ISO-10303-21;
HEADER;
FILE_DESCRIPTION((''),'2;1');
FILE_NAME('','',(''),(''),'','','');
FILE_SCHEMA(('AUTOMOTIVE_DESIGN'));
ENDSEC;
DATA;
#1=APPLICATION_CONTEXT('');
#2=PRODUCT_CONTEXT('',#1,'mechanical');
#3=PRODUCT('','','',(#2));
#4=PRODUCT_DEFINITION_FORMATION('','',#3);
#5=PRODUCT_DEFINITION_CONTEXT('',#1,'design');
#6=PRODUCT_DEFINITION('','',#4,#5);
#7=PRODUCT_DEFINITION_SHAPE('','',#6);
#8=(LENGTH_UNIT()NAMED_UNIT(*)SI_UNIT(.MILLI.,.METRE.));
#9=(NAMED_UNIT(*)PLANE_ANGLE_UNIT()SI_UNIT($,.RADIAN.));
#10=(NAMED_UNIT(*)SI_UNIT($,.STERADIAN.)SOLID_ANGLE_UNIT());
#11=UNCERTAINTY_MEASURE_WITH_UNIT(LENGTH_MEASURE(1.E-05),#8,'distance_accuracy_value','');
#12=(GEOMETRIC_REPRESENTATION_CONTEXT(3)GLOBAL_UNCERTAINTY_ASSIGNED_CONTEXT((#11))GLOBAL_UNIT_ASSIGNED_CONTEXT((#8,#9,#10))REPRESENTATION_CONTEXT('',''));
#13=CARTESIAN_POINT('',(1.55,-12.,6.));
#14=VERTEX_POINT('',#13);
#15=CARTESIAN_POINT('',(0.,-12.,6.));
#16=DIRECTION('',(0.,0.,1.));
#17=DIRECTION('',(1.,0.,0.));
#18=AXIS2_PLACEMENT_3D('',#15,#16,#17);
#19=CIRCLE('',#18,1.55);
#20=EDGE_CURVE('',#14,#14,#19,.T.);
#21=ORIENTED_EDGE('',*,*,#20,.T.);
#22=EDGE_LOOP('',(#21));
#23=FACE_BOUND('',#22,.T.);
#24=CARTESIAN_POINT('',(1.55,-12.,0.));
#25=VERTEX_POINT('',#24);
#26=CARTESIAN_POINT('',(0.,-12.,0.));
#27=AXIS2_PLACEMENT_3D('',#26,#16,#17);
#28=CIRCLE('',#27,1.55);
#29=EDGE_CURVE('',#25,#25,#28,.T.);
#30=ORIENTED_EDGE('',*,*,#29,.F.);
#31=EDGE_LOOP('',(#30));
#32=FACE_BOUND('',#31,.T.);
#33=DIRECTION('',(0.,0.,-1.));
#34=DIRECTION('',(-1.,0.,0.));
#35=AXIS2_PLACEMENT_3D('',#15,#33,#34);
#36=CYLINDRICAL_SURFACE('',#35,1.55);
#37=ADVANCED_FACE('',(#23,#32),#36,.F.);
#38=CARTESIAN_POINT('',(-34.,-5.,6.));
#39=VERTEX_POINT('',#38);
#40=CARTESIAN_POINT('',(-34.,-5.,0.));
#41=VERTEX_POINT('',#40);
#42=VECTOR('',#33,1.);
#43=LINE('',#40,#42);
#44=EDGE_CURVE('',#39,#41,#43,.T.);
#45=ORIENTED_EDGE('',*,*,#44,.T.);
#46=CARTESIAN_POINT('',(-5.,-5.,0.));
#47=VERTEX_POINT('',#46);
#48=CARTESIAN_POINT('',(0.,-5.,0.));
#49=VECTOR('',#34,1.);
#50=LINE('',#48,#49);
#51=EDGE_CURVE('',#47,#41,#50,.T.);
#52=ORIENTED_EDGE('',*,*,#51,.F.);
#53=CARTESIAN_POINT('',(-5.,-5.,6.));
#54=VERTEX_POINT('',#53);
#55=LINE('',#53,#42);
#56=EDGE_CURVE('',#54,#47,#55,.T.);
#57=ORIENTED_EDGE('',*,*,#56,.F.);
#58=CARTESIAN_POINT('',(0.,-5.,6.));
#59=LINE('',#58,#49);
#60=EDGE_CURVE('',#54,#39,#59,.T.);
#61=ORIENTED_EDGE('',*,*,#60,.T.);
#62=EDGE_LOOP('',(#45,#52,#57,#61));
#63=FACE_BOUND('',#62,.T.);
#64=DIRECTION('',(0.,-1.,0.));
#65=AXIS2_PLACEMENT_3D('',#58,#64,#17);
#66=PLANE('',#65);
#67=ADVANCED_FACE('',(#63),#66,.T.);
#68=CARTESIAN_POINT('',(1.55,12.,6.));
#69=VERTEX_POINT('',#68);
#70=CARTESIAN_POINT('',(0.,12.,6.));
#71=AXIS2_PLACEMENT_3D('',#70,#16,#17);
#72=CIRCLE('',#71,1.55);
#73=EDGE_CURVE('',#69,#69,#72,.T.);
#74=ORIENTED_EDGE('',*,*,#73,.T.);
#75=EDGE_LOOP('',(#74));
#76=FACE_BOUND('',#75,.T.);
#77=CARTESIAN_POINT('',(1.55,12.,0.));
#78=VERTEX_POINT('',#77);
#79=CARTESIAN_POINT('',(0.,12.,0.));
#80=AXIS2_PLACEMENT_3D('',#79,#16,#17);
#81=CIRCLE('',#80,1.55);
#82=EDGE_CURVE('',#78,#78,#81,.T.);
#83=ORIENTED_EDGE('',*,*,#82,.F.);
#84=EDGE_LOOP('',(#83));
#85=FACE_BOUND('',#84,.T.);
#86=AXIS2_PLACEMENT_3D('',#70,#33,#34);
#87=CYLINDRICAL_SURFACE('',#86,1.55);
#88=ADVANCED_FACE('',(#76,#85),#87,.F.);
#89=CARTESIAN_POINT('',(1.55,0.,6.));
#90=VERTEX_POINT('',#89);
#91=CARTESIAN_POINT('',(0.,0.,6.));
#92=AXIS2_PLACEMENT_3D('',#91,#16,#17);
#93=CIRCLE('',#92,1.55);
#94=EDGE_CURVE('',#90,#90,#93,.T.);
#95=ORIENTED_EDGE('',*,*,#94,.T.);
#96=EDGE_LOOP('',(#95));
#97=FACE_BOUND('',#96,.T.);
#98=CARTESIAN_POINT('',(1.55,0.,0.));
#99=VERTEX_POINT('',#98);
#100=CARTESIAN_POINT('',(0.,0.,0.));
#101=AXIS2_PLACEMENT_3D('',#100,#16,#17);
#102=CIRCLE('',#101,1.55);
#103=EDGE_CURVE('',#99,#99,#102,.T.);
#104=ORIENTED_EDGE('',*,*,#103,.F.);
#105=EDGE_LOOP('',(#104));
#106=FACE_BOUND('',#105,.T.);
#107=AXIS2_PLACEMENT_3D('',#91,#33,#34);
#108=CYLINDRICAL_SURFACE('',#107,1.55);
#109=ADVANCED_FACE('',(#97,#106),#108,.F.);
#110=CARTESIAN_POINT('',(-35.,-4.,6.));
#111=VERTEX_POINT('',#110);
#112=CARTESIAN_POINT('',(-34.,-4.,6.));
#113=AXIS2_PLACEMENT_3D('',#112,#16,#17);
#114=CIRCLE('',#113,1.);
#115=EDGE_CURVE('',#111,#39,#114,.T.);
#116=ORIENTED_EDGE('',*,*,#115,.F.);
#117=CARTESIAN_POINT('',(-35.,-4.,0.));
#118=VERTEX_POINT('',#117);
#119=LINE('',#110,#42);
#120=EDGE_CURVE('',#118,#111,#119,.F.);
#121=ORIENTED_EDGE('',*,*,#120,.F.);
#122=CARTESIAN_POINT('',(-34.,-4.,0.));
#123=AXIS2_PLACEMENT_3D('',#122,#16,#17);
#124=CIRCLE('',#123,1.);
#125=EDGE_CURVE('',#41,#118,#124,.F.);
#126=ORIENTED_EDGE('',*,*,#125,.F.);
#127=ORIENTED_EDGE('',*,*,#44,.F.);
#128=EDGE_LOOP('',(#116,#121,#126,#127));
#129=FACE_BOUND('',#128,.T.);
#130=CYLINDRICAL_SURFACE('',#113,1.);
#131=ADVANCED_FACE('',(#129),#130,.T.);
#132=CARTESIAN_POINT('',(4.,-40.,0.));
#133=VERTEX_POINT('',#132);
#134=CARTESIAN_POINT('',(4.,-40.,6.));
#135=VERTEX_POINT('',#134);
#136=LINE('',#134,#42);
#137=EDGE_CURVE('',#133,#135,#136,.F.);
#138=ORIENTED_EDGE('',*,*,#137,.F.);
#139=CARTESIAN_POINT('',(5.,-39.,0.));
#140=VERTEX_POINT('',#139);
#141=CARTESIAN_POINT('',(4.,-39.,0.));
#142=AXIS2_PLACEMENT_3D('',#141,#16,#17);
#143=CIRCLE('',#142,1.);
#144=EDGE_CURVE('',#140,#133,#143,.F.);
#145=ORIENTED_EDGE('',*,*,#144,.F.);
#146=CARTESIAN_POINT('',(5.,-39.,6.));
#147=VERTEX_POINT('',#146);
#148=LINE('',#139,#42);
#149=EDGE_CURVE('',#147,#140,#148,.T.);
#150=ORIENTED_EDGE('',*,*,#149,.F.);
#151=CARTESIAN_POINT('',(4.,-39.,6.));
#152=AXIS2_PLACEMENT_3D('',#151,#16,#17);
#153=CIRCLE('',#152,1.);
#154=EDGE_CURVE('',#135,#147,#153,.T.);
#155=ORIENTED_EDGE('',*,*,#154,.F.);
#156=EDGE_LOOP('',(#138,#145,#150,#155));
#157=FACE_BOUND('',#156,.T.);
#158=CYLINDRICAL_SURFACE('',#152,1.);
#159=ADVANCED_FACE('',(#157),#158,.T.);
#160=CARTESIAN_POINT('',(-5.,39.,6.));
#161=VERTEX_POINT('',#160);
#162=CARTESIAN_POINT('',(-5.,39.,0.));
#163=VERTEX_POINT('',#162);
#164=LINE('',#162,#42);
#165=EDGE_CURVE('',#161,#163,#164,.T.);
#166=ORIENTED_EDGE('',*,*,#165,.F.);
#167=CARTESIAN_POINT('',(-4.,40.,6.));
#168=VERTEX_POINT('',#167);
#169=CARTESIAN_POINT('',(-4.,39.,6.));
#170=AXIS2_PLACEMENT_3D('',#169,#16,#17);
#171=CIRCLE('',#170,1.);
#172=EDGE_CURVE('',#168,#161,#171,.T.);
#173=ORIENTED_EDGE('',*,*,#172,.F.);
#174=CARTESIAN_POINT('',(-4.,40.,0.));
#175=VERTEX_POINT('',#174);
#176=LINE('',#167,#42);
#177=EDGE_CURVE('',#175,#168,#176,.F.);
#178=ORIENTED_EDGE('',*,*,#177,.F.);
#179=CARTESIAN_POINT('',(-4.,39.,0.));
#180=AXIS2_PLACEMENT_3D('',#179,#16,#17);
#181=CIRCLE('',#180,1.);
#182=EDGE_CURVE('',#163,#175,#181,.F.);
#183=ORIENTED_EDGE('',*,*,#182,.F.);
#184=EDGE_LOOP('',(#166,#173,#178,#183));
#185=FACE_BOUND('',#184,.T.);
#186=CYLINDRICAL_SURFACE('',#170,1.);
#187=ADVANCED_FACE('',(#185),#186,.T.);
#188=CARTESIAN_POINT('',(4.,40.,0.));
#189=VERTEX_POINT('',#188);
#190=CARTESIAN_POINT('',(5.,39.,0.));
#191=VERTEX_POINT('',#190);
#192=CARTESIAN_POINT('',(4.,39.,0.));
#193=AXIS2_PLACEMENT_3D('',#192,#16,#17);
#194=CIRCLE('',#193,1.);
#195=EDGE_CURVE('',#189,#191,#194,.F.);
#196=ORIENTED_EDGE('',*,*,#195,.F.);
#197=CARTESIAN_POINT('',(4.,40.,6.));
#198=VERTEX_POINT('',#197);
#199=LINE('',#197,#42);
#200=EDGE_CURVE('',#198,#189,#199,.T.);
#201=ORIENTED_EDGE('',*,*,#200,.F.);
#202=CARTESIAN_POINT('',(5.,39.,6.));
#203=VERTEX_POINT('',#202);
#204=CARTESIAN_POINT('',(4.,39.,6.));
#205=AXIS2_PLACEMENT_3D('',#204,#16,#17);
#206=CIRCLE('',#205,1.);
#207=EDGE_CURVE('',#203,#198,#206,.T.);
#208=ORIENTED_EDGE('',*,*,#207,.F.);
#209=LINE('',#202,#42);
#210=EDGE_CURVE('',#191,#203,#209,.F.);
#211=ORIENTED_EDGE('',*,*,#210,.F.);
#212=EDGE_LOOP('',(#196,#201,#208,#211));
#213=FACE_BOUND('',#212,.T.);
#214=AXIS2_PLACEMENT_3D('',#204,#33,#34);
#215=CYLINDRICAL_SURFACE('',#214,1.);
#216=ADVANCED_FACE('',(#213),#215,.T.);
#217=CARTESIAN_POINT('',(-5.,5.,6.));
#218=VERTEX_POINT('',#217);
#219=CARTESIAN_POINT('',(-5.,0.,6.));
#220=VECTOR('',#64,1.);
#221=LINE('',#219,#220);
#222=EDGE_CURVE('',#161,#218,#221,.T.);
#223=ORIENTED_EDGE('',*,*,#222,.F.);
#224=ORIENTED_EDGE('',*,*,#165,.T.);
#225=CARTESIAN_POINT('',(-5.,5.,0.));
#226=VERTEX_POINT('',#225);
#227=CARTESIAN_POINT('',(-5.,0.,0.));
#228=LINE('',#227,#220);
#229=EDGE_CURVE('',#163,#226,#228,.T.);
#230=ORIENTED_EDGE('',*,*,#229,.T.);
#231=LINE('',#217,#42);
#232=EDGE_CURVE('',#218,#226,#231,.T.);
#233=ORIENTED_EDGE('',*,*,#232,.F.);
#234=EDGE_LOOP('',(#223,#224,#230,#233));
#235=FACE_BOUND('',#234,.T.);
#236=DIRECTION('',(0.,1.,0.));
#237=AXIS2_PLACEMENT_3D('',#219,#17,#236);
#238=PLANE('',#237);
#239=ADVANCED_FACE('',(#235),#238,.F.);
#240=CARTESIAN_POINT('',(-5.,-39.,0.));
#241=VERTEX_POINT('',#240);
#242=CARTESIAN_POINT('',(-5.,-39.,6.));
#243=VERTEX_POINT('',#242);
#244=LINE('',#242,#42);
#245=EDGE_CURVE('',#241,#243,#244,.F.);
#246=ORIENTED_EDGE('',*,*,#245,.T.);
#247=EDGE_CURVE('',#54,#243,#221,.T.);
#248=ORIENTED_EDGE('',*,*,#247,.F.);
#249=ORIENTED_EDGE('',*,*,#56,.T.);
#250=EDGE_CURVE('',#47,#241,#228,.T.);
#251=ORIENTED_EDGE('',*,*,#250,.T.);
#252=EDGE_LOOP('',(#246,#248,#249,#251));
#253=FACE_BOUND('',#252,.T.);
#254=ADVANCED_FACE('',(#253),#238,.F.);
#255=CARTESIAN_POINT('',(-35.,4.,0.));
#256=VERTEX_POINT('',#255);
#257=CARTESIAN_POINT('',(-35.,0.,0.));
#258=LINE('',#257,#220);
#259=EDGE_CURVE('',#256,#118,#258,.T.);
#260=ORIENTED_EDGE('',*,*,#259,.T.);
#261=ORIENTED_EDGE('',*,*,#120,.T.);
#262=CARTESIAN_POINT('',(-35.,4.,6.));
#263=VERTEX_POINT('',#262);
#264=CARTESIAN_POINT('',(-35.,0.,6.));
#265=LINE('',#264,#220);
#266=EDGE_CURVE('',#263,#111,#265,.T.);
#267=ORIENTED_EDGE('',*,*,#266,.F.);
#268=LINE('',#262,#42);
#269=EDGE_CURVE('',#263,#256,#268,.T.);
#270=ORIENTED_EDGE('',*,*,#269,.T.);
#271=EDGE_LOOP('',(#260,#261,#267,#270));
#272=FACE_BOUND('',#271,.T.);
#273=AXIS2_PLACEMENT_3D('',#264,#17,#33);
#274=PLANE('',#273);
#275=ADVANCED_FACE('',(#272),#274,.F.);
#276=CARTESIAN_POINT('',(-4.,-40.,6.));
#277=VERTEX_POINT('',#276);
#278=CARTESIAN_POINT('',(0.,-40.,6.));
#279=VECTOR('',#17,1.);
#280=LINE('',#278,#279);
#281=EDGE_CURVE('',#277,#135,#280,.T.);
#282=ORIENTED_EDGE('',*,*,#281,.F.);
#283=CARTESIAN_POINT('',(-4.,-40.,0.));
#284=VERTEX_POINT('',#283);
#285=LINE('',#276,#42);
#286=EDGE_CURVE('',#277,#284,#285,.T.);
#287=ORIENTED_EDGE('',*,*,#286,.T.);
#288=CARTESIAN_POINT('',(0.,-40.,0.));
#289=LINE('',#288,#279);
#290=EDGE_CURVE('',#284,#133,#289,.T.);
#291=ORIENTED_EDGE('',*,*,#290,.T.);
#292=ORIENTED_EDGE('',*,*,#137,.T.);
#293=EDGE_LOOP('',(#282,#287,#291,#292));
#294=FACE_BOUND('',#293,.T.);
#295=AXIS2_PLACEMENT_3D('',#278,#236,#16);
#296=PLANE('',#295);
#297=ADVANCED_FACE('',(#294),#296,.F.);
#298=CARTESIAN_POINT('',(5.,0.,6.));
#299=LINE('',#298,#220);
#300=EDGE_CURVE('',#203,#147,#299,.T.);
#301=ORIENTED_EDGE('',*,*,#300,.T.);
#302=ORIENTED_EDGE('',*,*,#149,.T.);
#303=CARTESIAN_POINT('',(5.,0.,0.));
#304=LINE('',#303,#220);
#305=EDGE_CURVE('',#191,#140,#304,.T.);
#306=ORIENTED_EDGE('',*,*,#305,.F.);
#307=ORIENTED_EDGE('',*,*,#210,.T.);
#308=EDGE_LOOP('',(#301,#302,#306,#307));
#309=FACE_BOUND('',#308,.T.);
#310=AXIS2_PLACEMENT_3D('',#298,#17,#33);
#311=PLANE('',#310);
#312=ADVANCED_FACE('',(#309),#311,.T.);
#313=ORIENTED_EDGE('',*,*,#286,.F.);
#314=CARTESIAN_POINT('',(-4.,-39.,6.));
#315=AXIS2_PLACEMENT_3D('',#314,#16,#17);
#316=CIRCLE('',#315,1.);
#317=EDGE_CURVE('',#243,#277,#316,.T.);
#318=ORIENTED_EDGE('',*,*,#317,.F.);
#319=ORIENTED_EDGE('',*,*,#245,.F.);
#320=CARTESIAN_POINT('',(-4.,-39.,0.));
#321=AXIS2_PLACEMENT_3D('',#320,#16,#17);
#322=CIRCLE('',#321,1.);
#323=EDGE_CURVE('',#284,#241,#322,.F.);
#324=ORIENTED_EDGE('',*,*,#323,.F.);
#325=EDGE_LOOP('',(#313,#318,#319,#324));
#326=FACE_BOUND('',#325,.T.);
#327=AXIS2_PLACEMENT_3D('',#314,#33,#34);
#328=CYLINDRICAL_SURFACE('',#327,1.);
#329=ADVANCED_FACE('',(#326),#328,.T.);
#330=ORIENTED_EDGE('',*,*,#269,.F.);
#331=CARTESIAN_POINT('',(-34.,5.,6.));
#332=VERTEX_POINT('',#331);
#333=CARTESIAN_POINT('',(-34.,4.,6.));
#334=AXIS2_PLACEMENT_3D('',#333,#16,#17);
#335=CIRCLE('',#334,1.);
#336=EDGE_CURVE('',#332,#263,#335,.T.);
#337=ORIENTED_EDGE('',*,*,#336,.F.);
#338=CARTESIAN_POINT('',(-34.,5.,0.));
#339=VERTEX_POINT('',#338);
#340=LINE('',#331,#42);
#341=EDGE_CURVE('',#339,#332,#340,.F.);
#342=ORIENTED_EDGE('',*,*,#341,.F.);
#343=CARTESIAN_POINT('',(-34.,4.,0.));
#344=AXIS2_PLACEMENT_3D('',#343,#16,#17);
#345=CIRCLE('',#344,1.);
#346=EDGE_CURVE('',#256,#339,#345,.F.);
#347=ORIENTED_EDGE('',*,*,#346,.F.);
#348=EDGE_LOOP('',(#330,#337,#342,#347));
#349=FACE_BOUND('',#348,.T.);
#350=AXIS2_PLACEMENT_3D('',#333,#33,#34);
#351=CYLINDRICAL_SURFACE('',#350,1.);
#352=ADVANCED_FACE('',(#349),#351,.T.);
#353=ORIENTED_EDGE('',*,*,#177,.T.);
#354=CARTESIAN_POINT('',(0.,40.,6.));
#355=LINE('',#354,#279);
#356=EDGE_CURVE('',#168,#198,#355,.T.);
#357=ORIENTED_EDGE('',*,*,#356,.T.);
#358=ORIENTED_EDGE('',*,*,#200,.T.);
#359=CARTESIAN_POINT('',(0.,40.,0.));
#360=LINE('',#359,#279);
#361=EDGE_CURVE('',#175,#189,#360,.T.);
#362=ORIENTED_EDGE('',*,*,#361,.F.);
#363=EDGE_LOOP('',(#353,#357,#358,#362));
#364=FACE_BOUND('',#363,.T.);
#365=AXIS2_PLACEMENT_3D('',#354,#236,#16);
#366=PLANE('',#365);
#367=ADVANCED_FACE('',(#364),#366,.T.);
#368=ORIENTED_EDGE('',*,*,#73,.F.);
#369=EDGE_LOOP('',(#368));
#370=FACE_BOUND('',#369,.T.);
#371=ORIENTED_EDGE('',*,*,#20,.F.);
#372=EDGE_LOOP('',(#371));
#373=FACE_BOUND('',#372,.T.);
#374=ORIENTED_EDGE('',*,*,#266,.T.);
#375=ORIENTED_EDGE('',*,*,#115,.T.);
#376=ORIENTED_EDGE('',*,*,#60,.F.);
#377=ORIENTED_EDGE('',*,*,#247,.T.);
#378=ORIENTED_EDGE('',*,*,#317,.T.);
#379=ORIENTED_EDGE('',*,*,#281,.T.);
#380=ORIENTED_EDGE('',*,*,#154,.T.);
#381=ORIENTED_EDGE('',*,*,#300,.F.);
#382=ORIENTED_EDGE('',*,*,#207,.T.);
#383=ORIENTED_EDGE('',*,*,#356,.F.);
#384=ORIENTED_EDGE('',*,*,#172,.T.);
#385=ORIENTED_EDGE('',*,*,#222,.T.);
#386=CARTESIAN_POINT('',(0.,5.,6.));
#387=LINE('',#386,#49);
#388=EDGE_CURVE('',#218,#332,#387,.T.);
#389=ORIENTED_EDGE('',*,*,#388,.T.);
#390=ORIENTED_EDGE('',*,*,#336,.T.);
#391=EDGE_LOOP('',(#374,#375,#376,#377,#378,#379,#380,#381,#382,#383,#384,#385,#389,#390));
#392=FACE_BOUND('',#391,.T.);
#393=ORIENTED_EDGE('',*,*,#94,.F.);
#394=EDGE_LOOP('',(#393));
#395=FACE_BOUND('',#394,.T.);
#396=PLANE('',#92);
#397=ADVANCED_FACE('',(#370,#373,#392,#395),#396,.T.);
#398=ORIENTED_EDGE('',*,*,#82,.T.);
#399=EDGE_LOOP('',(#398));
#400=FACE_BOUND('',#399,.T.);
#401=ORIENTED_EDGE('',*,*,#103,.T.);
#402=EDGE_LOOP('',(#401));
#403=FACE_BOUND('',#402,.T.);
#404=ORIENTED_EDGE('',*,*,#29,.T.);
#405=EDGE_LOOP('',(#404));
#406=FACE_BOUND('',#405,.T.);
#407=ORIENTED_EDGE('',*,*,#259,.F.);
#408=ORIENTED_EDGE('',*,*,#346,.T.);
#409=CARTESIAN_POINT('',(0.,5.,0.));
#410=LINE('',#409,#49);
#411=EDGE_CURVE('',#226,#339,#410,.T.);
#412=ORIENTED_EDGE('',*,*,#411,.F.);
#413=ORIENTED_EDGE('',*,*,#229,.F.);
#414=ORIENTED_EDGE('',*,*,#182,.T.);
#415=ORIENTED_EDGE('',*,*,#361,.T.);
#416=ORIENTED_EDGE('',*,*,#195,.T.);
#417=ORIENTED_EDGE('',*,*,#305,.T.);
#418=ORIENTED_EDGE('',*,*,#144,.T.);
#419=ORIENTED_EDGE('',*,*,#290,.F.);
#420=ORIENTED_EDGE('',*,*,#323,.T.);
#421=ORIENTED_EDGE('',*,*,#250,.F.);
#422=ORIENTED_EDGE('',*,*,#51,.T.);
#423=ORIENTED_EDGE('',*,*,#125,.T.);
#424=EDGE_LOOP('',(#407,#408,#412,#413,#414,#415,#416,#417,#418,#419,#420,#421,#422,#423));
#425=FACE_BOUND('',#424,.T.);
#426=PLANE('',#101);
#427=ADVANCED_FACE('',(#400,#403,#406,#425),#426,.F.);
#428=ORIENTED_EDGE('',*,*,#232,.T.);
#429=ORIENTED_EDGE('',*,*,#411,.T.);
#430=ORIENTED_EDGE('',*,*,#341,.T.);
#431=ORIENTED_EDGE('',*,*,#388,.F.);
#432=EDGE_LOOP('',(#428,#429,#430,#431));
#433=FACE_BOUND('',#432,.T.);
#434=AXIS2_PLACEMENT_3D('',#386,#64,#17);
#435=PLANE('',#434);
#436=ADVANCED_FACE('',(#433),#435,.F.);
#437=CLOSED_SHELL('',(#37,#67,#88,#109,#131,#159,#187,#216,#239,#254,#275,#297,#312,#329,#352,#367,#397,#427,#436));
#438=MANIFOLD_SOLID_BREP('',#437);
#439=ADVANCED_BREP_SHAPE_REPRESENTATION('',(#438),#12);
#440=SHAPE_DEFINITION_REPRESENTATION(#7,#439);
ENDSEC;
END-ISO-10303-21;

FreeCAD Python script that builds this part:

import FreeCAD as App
import Part
import Sketcher
from FreeCAD import Vector


def edges_at(feature, points):
    """Names of the edges that pass closest to the given points."""
    edges = feature.Shape.Edges
    near = lambda p: min(range(len(edges)), key=lambda i: edges[i].distToShape(Part.Vertex(*p))[0])
    return sorted({f"Edge{near(p) + 1}" for p in points})


def add_polygon(sketch, points):
    """Adds a closed chain of lines whose ends are joined by coincident constraints."""
    first, n = sketch.GeometryCount, len(points)
    for a, b in zip(points, points[1:] + points[:1]):
        sketch.addGeometry(Part.LineSegment(App.Vector(*a, 0), App.Vector(*b, 0)), False)
    for i in range(n):
        sketch.addConstraint(Sketcher.Constraint("Coincident", first + i, 2, first + (i + 1) % n, 1))

doc = App.newDocument("Part")
params = doc.addObject("Spreadsheet::Sheet", "Params")
for row, (alias, value) in enumerate([
    ("sketch1_diameter", "3.1 mm"),
    ("sketch1_width", "10 mm"),
    ("sketch1_width2", "30 mm"),
    ("sketch1_height", "35 mm"),
    ("pad1_length", "6 mm"),
    ("fillet_radius", "1 mm"),
], start=1):
    params.set(f"A{row}", alias)
    params.set(f"B{row}", "=" + value)
    params.setAlias(f"B{row}", alias)

body = doc.addObject("PartDesign::Body", "Body")

sketch1 = doc.addObject("Sketcher::SketchObject", "Sketch")
body.addObject(sketch1)
sketch1.AttachmentSupport = (doc.XY_Plane, [""])
sketch1.MapMode = "FlatFace"
add_polygon(sketch1, [(-5, -5), (-5, -40), (5, -40), (5, 40), (-5, 40), (-5, 5), (-35, 5), (-35, -5)])
sketch1.addGeometry(Part.Circle(Vector(0, -12, 0), Vector(0, 0, 1), 1.55), False)
sketch1.addGeometry(Part.Circle(Vector(0, 0, 0), Vector(0, 0, 1), 1.55), False)
sketch1.addGeometry(Part.Circle(Vector(0, 12, 0), Vector(0, 0, 1), 1.55), False)
sketch1.addConstraint(Sketcher.Constraint("Vertical", 0))
sketch1.addConstraint(Sketcher.Constraint("Horizontal", 1))
sketch1.addConstraint(Sketcher.Constraint("Vertical", 2))
sketch1.addConstraint(Sketcher.Constraint("Horizontal", 3))
sketch1.addConstraint(Sketcher.Constraint("Vertical", 4))
sketch1.addConstraint(Sketcher.Constraint("Horizontal", 5))
sketch1.addConstraint(Sketcher.Constraint("Vertical", 6))
sketch1.addConstraint(Sketcher.Constraint("Horizontal", 7))
sketch1.addConstraint(Sketcher.Constraint("Coincident", 9, 3, -1, 1))
sketch1.addConstraint(Sketcher.Constraint("Equal", 8, 9))
sketch1.addConstraint(Sketcher.Constraint("Equal", 9, 10))
sketch1.addConstraint(Sketcher.Constraint("Symmetric", 8, 3, 10, 3, -1, 1))
sketch1.addConstraint(Sketcher.Constraint("Symmetric", 0, 2, 2, 2, -1, 1))
sketch1.addConstraint(Sketcher.Constraint("Symmetric", 4, 2, 7, 2, -1))
sketch1.addConstraint(Sketcher.Constraint("PointOnObject", 8, 3, -2))
sketch1.addConstraint(Sketcher.Constraint("Equal", 3, 6))
sketch1.addConstraint(Sketcher.Constraint("Diameter", 8, 3.1))
sketch1.addConstraint(Sketcher.Constraint("DistanceX", 1, 1, 1, 2, 10.0))
sketch1.addConstraint(Sketcher.Constraint("DistanceX", 5, 2, 5, 1, 30.0))
sketch1.addConstraint(Sketcher.Constraint("DistanceY", 0, 2, 0, 1, 35.0))
sketch1.addConstraint(Sketcher.Constraint("DistanceY", 8, 3, -1, 1, 12.0))
sketch1.setExpression("Constraints[24]", "Params.sketch1_diameter")
sketch1.setExpression("Constraints[25]", "Params.sketch1_width")
sketch1.setExpression("Constraints[26]", "Params.sketch1_width2")
sketch1.setExpression("Constraints[27]", "Params.sketch1_height")
pad1 = doc.addObject("PartDesign::Pad", "Pad")
body.addObject(pad1)
pad1.Profile = sketch1
pad1.setExpression("Length", "Params.pad1_length")
doc.recompute()

fillet = doc.addObject("PartDesign::Fillet", "Fillet")
body.addObject(fillet)
fillet.Base = (pad1, edges_at(pad1, [
    (-5, 40, 3),
    (5, 40, 3),
    (5, -40, 3),
    (-5, -40, 3),
    (-35, -5, 3),
    (-35, 5, 3),
]))
fillet.setExpression("Radius", "Params.fillet_radius")

doc.recompute()
